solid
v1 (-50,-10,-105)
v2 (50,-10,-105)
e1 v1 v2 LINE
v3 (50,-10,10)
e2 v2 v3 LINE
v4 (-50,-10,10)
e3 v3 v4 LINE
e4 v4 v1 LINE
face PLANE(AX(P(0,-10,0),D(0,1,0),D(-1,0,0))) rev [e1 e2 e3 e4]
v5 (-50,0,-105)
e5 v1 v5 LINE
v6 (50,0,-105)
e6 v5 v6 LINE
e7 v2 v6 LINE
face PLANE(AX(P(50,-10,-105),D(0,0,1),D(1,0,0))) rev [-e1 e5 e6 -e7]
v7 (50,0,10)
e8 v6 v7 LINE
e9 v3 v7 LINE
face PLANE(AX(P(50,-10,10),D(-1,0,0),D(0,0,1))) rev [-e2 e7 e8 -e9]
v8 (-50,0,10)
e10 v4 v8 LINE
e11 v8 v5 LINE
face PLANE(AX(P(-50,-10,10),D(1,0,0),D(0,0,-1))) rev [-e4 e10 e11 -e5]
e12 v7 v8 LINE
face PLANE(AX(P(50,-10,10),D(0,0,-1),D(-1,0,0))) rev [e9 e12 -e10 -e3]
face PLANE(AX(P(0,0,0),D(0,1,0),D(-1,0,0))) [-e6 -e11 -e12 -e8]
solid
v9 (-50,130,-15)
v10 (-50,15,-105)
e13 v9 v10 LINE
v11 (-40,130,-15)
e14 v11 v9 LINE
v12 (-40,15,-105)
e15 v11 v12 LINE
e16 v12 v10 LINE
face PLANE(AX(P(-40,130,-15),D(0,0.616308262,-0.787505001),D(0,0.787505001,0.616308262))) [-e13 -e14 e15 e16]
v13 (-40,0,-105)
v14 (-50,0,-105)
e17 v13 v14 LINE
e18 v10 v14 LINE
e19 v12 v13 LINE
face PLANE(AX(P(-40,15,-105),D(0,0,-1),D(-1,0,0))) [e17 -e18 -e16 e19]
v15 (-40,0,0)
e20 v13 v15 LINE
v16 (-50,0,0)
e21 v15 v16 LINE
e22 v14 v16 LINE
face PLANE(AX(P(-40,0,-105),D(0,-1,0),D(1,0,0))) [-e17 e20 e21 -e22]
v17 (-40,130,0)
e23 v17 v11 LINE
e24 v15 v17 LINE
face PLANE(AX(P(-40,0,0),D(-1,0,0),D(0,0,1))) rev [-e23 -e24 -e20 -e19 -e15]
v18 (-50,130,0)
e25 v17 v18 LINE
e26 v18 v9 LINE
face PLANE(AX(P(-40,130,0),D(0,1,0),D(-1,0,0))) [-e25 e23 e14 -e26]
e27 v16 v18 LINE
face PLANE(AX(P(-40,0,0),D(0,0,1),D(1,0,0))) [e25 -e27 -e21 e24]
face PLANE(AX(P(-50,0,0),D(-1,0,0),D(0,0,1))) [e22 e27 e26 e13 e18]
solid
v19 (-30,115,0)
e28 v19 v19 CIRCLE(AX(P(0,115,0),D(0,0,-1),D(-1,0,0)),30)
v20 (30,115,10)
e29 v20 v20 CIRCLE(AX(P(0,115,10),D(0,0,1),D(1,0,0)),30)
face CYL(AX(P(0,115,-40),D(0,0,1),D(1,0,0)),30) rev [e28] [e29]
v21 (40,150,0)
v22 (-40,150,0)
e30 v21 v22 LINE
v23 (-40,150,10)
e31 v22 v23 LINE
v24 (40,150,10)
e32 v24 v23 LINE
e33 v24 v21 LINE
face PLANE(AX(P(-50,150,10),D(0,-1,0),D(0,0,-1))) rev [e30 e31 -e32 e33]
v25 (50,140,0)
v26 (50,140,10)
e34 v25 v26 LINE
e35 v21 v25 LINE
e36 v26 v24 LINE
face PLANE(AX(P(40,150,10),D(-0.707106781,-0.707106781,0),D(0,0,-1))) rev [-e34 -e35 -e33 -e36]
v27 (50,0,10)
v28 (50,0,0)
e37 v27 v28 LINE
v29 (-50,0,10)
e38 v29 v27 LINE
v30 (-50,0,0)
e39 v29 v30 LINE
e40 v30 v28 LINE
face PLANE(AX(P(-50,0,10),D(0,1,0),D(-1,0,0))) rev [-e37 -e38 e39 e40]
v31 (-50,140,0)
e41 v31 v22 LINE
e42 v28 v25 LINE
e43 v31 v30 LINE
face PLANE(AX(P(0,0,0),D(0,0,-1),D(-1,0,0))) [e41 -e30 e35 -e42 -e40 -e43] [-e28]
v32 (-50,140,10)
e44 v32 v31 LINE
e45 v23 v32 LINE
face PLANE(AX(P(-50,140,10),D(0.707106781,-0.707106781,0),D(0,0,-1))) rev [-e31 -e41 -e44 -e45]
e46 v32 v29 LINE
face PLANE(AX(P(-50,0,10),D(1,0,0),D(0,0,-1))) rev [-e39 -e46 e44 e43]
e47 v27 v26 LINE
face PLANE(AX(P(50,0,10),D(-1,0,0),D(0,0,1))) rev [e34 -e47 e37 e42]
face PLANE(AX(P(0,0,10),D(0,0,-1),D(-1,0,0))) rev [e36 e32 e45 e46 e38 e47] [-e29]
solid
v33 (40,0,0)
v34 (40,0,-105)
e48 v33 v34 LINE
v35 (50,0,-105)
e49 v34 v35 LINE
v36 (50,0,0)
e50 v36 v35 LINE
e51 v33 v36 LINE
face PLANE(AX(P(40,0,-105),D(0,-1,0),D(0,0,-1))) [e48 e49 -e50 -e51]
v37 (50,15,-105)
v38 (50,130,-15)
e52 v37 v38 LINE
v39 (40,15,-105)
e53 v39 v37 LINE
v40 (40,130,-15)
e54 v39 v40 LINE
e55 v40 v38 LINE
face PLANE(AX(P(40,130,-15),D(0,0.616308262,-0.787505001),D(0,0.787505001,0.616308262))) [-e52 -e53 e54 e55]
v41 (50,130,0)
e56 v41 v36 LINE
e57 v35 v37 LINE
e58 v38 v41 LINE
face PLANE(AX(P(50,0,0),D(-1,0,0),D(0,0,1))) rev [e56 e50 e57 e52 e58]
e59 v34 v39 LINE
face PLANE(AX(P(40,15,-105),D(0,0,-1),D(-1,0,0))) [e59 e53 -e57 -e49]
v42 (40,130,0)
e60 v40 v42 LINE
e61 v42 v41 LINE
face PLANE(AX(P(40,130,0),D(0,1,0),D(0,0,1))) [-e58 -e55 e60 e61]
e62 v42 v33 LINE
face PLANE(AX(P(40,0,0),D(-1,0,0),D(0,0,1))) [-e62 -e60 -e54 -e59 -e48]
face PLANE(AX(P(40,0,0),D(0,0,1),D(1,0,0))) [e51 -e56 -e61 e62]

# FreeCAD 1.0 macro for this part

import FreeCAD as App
import Part
import Sketcher
from FreeCAD import Vector


def edges_at(feature, points):
    """Names of the edges that pass closest to the given points."""
    edges = feature.Shape.Edges
    near = lambda p: min(range(len(edges)), key=lambda i: edges[i].distToShape(Part.Vertex(*p))[0])
    return sorted({f"Edge{near(p) + 1}" for p in points})

doc = App.newDocument("Part")
body = doc.addObject("PartDesign::Body", "Body")

sketch1 = body.newObject("Sketcher::SketchObject", "Sketch")
sketch1.AttachmentSupport = (doc.getObject("XY_Plane"), [""])
sketch1.MapMode = "FlatFace"
sketch1.addGeometry(Part.LineSegment(Vector(-50, 150, 0), Vector(-50, 0, 0)), False)
sketch1.addGeometry(Part.LineSegment(Vector(-50, 0, 0), Vector(50, 0, 0)), False)
sketch1.addGeometry(Part.LineSegment(Vector(50, 0, 0), Vector(50, 150, 0)), False)
sketch1.addGeometry(Part.LineSegment(Vector(50, 150, 0), Vector(-50, 150, 0)), False)
sketch1.addConstraint(Sketcher.Constraint("Coincident", 0, 2, 1, 1))
sketch1.addConstraint(Sketcher.Constraint("Coincident", 1, 2, 2, 1))
sketch1.addConstraint(Sketcher.Constraint("Coincident", 2, 2, 3, 1))
sketch1.addConstraint(Sketcher.Constraint("Coincident", 3, 2, 0, 1))
sketch1.addConstraint(Sketcher.Constraint("Vertical", 0))
sketch1.addConstraint(Sketcher.Constraint("Horizontal", 1))
sketch1.addConstraint(Sketcher.Constraint("Vertical", 2))
sketch1.addConstraint(Sketcher.Constraint("Horizontal", 3))
sketch1.addConstraint(Sketcher.Constraint("Symmetric", 0, 2, 1, 2, -1, 1))
sketch1.addConstraint(Sketcher.Constraint("DistanceX", 1, 1, 1, 2, 100.0))
sketch1.addConstraint(Sketcher.Constraint("DistanceY", 0, 2, 0, 1, 150.0))
pad1 = body.newObject("PartDesign::Pad", "Pad")
pad1.Profile = sketch1
pad1.Length = 10
doc.recompute()

chamfer = body.newObject("PartDesign::Chamfer", "Chamfer")
chamfer.Base = (pad1, edges_at(pad1, [(-50, 150, 5), (50, 150, 5)]))
chamfer.Size = 10

sketch2 = body.newObject("Sketcher::SketchObject", "Sketch001")
sketch2.AttachmentSupport = (doc.getObject("XY_Plane"), [""])
sketch2.MapMode = "FlatFace"
sketch2.AttachmentOffset = App.Placement(Vector(0, 0, 10), App.Rotation())
sketch2.addGeometry(Part.Circle(Vector(0, 115, 0), Vector(0, 0, 1), 30), False)
sketch2.addConstraint(Sketcher.Constraint("PointOnObject", 0, 3, -2))
sketch2.addConstraint(Sketcher.Constraint("Diameter", 0, 60.0))
sketch2.addConstraint(Sketcher.Constraint("DistanceY", -1, 1, 0, 3, 115.0))
pocket1 = body.newObject("PartDesign::Pocket", "Pocket")
pocket1.Profile = sketch2
pocket1.Length = 50
body2 = doc.addObject("PartDesign::Body", "Body001")

sketch3 = body2.newObject("Sketcher::SketchObject", "Sketch002")
sketch3.AttachmentSupport = (doc.getObject("XZ_Plane001"), [""])
sketch3.MapMode = "FlatFace"
sketch3.addGeometry(Part.LineSegment(Vector(-50, 10, 0), Vector(-50, -105, 0)), False)
sketch3.addGeometry(Part.LineSegment(Vector(-50, -105, 0), Vector(50, -105, 0)), False)
sketch3.addGeometry(Part.LineSegment(Vector(50, -105, 0), Vector(50, 10, 0)), False)
sketch3.addGeometry(Part.LineSegment(Vector(50, 10, 0), Vector(-50, 10, 0)), False)
sketch3.addConstraint(Sketcher.Constraint("Coincident", 0, 2, 1, 1))
sketch3.addConstraint(Sketcher.Constraint("Coincident", 1, 2, 2, 1))
sketch3.addConstraint(Sketcher.Constraint("Coincident", 2, 2, 3, 1))
sketch3.addConstraint(Sketcher.Constraint("Coincident", 3, 2, 0, 1))
sketch3.addConstraint(Sketcher.Constraint("Vertical", 0))
sketch3.addConstraint(Sketcher.Constraint("Horizontal", 1))
sketch3.addConstraint(Sketcher.Constraint("Vertical", 2))
sketch3.addConstraint(Sketcher.Constraint("Horizontal", 3))
sketch3.addConstraint(Sketcher.Constraint("DistanceX", 1, 1, 1, 2, 100.0))
sketch3.addConstraint(Sketcher.Constraint("DistanceY", 0, 2, 0, 1, 115.0))
sketch3.addConstraint(Sketcher.Constraint("DistanceX", 0, 2, -1, 1, 50.0))
sketch3.addConstraint(Sketcher.Constraint("DistanceY", 0, 2, -1, 1, 105.0))
pad2 = body2.newObject("PartDesign::Pad", "Pad001")
pad2.Profile = sketch3
pad2.Length = 10
body3 = doc.addObject("PartDesign::Body", "Body002")

sketch4 = body3.newObject("Sketcher::SketchObject", "Sketch003")
sketch4.AttachmentSupport = (doc.getObject("YZ_Plane002"), [""])
sketch4.MapMode = "FlatFace"
sketch4.AttachmentOffset = App.Placement(Vector(0, 0, 50), App.Rotation())
sketch4.addGeometry(Part.LineSegment(Vector(0, 0, 0), Vector(0, -105, 0)), False)
sketch4.addGeometry(Part.LineSegment(Vector(0, -105, 0), Vector(15, -105, 0)), False)
sketch4.addGeometry(Part.LineSegment(Vector(15, -105, 0), Vector(130, -15, 0)), False)
sketch4.addGeometry(Part.LineSegment(Vector(130, -15, 0), Vector(130, 0, 0)), False)
sketch4.addGeometry(Part.LineSegment(Vector(130, 0, 0), Vector(0, 0, 0)), False)
sketch4.addConstraint(Sketcher.Constraint("Coincident", 0, 2, 1, 1))
sketch4.addConstraint(Sketcher.Constraint("Coincident", 1, 2, 2, 1))
sketch4.addConstraint(Sketcher.Constraint("Coincident", 2, 2, 3, 1))
sketch4.addConstraint(Sketcher.Constraint("Coincident", 3, 2, 4, 1))
sketch4.addConstraint(Sketcher.Constraint("Coincident", 4, 2, 0, 1))
sketch4.addConstraint(Sketcher.Constraint("Vertical", 0))
sketch4.addConstraint(Sketcher.Constraint("Horizontal", 1))
sketch4.addConstraint(Sketcher.Constraint("Vertical", 3))
sketch4.addConstraint(Sketcher.Constraint("Horizontal", 4))
sketch4.addConstraint(Sketcher.Constraint("Coincident", 4, 2, -1, 1))
sketch4.addConstraint(Sketcher.Constraint("Equal", 1, 3))
sketch4.addConstraint(Sketcher.Constraint("DistanceX", 1, 1, 1, 2, 15.0))
sketch4.addConstraint(Sketcher.Constraint("DistanceX", 4, 2, 4, 1, 130.0))
sketch4.addConstraint(Sketcher.Constraint("DistanceY", 0, 2, 0, 1, 105.0))
pad3 = body3.newObject("PartDesign::Pad", "Pad002")
pad3.Profile = sketch4
pad3.Length = 10
pad3.Reversed = True
body4 = doc.addObject("PartDesign::Body", "Body003")

sketch5 = body4.newObject("Sketcher::SketchObject", "Sketch004")
sketch5.AttachmentSupport = (doc.getObject("YZ_Plane003"), [""])
sketch5.MapMode = "FlatFace"
sketch5.AttachmentOffset = App.Placement(Vector(0, 0, -50), App.Rotation())
sketch5.addGeometry(Part.LineSegment(Vector(0, 0, 0), Vector(130, 0, 0)), False)
sketch5.addGeometry(Part.LineSegment(Vector(130, 0, 0), Vector(130, -15, 0)), False)
sketch5.addGeometry(Part.LineSegment(Vector(130, -15, 0), Vector(15, -105, 0)), False)
sketch5.addGeometry(Part.LineSegment(Vector(15, -105, 0), Vector(0, -105, 0)), False)
sketch5.addGeometry(Part.LineSegment(Vector(0, -105, 0), Vector(0, 0, 0)), False)
sketch5.addConstraint(Sketcher.Constraint("Coincident", 0, 2, 1, 1))
sketch5.addConstraint(Sketcher.Constraint("Coincident", 1, 2, 2, 1))
sketch5.addConstraint(Sketcher.Constraint("Coincident", 2, 2, 3, 1))
sketch5.addConstraint(Sketcher.Constraint("Coincident", 3, 2, 4, 1))
sketch5.addConstraint(Sketcher.Constraint("Coincident", 4, 2, 0, 1))
sketch5.addConstraint(Sketcher.Constraint("Horizontal", 0))
sketch5.addConstraint(Sketcher.Constraint("Vertical", 1))
sketch5.addConstraint(Sketcher.Constraint("Horizontal", 3))
sketch5.addConstraint(Sketcher.Constraint("Vertical", 4))
sketch5.addConstraint(Sketcher.Constraint("Coincident", 4, 2, -1, 1))
sketch5.addConstraint(Sketcher.Constraint("Equal", 3, 1))
sketch5.addConstraint(Sketcher.Constraint("DistanceX", 0, 1, 0, 2, 130.0))
sketch5.addConstraint(Sketcher.Constraint("DistanceX", 3, 2, 3, 1, 15.0))
sketch5.addConstraint(Sketcher.Constraint("DistanceY", 4, 1, 4, 2, 105.0))
pad4 = body4.newObject("PartDesign::Pad", "Pad003")
pad4.Profile = sketch5
pad4.Length = 10

doc.recompute()
